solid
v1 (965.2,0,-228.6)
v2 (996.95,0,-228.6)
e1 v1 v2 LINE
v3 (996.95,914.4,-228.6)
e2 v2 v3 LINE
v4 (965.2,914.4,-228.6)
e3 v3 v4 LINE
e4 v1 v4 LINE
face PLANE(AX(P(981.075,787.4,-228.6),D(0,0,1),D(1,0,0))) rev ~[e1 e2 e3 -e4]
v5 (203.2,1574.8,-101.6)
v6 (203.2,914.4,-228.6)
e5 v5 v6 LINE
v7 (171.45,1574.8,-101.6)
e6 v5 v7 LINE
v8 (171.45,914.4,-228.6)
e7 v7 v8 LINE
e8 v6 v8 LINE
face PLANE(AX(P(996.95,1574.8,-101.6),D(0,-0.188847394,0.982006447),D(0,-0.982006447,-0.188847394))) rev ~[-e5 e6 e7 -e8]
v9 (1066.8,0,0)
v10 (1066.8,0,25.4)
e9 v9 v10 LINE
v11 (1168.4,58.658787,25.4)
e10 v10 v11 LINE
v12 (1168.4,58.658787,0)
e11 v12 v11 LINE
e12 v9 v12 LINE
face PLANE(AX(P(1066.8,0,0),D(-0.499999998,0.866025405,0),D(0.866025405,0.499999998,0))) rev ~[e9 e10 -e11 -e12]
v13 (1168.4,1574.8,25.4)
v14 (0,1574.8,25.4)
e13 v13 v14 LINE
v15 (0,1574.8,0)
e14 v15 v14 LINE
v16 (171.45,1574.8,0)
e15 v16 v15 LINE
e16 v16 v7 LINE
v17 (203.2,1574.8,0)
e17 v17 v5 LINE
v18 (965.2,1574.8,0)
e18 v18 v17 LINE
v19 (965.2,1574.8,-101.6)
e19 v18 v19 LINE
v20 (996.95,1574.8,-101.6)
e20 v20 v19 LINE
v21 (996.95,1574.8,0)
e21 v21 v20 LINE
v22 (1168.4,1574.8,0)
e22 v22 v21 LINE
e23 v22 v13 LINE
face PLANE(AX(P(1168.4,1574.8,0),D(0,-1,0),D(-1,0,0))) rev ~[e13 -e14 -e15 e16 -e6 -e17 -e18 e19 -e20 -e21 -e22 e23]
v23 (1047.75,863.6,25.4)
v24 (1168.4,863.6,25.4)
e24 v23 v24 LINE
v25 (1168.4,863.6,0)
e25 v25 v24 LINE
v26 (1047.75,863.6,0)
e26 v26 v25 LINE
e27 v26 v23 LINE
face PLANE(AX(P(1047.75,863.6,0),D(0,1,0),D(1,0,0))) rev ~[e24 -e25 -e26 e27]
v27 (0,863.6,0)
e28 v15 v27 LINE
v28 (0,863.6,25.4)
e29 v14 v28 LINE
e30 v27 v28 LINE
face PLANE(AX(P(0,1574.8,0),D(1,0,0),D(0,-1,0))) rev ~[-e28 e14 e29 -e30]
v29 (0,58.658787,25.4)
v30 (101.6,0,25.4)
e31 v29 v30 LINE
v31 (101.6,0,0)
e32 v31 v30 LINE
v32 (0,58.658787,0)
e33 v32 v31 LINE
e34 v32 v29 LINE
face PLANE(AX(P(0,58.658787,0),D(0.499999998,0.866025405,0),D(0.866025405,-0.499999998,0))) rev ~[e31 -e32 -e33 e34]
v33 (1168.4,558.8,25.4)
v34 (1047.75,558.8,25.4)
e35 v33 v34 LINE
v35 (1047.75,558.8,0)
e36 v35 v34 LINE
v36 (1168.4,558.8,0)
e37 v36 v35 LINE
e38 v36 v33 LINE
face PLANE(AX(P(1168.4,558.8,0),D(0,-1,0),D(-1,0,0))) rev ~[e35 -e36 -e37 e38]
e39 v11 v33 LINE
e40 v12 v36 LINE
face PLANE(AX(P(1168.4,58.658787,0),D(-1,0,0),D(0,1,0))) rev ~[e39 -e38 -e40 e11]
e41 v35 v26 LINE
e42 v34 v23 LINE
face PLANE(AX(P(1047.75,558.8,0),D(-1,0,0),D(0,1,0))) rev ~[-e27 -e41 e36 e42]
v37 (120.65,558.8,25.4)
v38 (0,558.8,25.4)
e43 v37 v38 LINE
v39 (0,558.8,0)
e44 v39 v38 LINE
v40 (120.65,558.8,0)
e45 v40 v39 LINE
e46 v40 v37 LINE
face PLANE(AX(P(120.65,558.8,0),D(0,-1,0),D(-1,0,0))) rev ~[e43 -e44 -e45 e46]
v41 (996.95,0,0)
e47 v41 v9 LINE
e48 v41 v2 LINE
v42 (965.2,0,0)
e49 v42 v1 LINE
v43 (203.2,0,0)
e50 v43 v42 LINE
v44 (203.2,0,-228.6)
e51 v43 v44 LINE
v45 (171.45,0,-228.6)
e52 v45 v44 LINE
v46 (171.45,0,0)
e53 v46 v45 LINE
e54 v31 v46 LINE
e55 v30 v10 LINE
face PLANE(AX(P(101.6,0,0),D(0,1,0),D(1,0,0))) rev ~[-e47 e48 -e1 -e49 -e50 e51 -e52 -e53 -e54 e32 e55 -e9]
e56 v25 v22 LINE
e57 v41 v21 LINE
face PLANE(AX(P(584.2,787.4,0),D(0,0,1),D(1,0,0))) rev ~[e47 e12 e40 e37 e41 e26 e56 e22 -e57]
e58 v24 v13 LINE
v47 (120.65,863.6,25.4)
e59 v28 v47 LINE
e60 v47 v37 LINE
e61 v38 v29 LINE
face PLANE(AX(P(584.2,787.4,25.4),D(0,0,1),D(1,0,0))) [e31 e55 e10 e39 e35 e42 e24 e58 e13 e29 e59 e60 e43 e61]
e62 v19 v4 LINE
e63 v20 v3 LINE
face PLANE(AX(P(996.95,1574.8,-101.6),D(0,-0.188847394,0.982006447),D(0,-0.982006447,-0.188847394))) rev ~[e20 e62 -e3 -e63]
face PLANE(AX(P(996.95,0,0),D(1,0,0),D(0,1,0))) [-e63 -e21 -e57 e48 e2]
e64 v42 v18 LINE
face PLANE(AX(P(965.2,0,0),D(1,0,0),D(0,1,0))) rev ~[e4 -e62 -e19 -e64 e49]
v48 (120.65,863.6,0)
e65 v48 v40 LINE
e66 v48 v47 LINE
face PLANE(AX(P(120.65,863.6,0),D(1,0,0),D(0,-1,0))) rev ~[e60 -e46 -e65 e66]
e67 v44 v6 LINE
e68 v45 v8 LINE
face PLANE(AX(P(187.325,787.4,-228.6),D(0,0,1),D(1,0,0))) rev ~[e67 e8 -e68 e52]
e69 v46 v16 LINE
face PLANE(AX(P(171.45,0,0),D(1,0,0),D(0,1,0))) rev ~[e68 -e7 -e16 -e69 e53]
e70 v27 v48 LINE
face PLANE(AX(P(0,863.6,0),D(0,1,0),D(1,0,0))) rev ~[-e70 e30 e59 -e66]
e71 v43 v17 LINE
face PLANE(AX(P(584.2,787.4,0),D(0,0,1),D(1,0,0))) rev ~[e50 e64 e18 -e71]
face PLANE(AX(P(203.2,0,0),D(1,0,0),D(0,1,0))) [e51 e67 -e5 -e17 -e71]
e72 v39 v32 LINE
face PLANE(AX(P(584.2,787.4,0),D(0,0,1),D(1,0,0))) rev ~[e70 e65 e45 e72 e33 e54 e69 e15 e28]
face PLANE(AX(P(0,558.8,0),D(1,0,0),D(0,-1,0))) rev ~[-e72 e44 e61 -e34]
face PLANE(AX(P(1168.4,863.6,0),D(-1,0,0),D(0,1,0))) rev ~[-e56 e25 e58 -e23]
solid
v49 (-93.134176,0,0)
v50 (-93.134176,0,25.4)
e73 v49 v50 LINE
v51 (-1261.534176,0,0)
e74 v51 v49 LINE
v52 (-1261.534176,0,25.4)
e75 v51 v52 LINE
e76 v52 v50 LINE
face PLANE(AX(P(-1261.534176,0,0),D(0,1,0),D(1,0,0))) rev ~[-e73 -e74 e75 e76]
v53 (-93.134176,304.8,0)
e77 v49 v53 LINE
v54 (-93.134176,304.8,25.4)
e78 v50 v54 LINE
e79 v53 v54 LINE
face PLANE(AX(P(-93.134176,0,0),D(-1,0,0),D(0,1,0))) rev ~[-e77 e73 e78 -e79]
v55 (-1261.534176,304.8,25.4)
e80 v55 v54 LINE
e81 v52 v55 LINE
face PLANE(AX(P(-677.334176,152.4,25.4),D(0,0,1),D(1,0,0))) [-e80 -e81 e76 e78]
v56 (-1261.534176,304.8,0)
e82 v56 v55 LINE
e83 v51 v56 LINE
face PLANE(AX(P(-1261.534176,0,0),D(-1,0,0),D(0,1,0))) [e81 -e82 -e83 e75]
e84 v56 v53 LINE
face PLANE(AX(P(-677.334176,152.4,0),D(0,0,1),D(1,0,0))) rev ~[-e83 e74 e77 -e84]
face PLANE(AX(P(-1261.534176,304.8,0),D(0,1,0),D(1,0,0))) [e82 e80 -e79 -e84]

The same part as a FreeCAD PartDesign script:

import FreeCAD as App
import Part
import Sketcher
Q = App.Units.Quantity

doc = App.newDocument("Part")
body = doc.addObject("PartDesign::Body", "Body")

# Sketch on XY plane
sketch1 = body.newObject("Sketcher::SketchObject", "Sketch")
sketch1.AttachmentSupport = (doc.getObject("XY_Plane"), [""])
sketch1.MapMode = "FlatFace"
sketch1.addGeometry([
    Part.LineSegment(App.Vector(0, 1575, 0), App.Vector(0, 864, 0)),  # 0
    Part.LineSegment(App.Vector(0, 864, 0), App.Vector(121, 864, 0)),  # 1
    Part.LineSegment(App.Vector(121, 864, 0), App.Vector(121, 559, 0)),  # 2
    Part.LineSegment(App.Vector(121, 559, 0), App.Vector(0, 559, 0)),  # 3
    Part.LineSegment(App.Vector(0, 559, 0), App.Vector(0, 59, 0)),  # 4
    Part.LineSegment(App.Vector(0, 59, 0), App.Vector(102, 0, 0)),  # 5
    Part.LineSegment(App.Vector(102, 0, 0), App.Vector(1067, 0, 0)),  # 6
    Part.LineSegment(App.Vector(1067, 0, 0), App.Vector(1168, 59, 0)),  # 7
    Part.LineSegment(App.Vector(1168, 59, 0), App.Vector(1168, 559, 0)),  # 8
    Part.LineSegment(App.Vector(1168, 559, 0), App.Vector(1048, 559, 0)),  # 9
    Part.LineSegment(App.Vector(1048, 559, 0), App.Vector(1048, 864, 0)),  # 10
    Part.LineSegment(App.Vector(1048, 864, 0), App.Vector(1168, 864, 0)),  # 11
    Part.LineSegment(App.Vector(1168, 864, 0), App.Vector(1168, 1575, 0)),  # 12
    Part.LineSegment(App.Vector(1168, 1575, 0), App.Vector(0, 1575, 0)),  # 13
], False)
sketch1.addConstraint([
    Sketcher.Constraint("Coincident", 0, 2, 1, 1),
    Sketcher.Constraint("Coincident", 1, 2, 2, 1),
    Sketcher.Constraint("Coincident", 2, 2, 3, 1),
    Sketcher.Constraint("Coincident", 3, 2, 4, 1),
    Sketcher.Constraint("Coincident", 4, 2, 5, 1),
    Sketcher.Constraint("Coincident", 5, 2, 6, 1),
    Sketcher.Constraint("Coincident", 6, 2, 7, 1),
    Sketcher.Constraint("Coincident", 7, 2, 8, 1),
    Sketcher.Constraint("Coincident", 8, 2, 9, 1),
    Sketcher.Constraint("Coincident", 9, 2, 10, 1),
    Sketcher.Constraint("Coincident", 10, 2, 11, 1),
    Sketcher.Constraint("Coincident", 11, 2, 12, 1),
    Sketcher.Constraint("Coincident", 12, 2, 13, 1),
    Sketcher.Constraint("Coincident", 13, 2, 0, 1),
    Sketcher.Constraint("Vertical", 0),
    Sketcher.Constraint("Horizontal", 1),
    Sketcher.Constraint("Vertical", 2),
    Sketcher.Constraint("Horizontal", 3),
    Sketcher.Constraint("Vertical", 4),
    Sketcher.Constraint("Horizontal", 6),
    Sketcher.Constraint("Vertical", 8),
    Sketcher.Constraint("Horizontal", 9),
    Sketcher.Constraint("Vertical", 10),
    Sketcher.Constraint("Horizontal", 11),
    Sketcher.Constraint("Vertical", 12),
    Sketcher.Constraint("Horizontal", 13),
    Sketcher.Constraint("PointOnObject", 0, 2, -2),
    Sketcher.Constraint("PointOnObject", 3, 2, -2),
    Sketcher.Constraint("PointOnObject", 5, 2, -1),
    Sketcher.Constraint("Horizontal", 4, 2, 7, 2),
    Sketcher.Constraint("Horizontal", 3, 2, 8, 2),
    Sketcher.Constraint("Horizontal", 1, 2, 10, 2),
    Sketcher.Constraint("Vertical", 8, 2, 11, 2),
    Sketcher.Constraint("Equal", 3, 9),
    Sketcher.Constraint("Equal", 5, 7),
    Sketcher.Constraint("DistanceX", 6, 1, 6, 2, Q("38 in")),
    Sketcher.Constraint("DistanceX", 13, 2, 13, 1, Q("46 in")),
    Sketcher.Constraint("DistanceY", 0, 2, 0, 1, Q("28 in")),
    Sketcher.Constraint("DistanceY", 2, 2, 2, 1, Q("12 in")),
    Sketcher.Constraint("DistanceY", -1, 1, 0, 2, Q("34 in")),
    Sketcher.Constraint("Angle", 5, Q("-30 deg")),
    Sketcher.Constraint("DistanceX", 1, 1, 1, 2, Q("4.75 in")),
])
pad1 = body.newObject("PartDesign::Pad", "Pad")
pad1.Profile = sketch1
pad1.Length = Q("1 in")

# Sketch on XY plane
sketch2 = body.newObject("Sketcher::SketchObject", "Sketch001")
sketch2.AttachmentSupport = (doc.getObject("XY_Plane"), [""])
sketch2.MapMode = "FlatFace"
sketch2.addGeometry([
    Part.LineSegment(App.Vector(171, 1575, 0), App.Vector(171, 0, 0)),  # 0
    Part.LineSegment(App.Vector(171, 0, 0), App.Vector(203, 0, 0)),  # 1
    Part.LineSegment(App.Vector(203, 0, 0), App.Vector(203, 1575, 0)),  # 2
    Part.LineSegment(App.Vector(203, 1575, 0), App.Vector(171, 1575, 0)),  # 3
    Part.LineSegment(App.Vector(965, 1575, 0), App.Vector(965, 0, 0)),  # 4
    Part.LineSegment(App.Vector(965, 0, 0), App.Vector(997, 0, 0)),  # 5
    Part.LineSegment(App.Vector(997, 0, 0), App.Vector(997, 1575, 0)),  # 6
    Part.LineSegment(App.Vector(997, 1575, 0), App.Vector(965, 1575, 0)),  # 7
], False)
sketch2.addConstraint([
    Sketcher.Constraint("Coincident", 0, 2, 1, 1),
    Sketcher.Constraint("Coincident", 1, 2, 2, 1),
    Sketcher.Constraint("Coincident", 2, 2, 3, 1),
    Sketcher.Constraint("Coincident", 3, 2, 0, 1),
    Sketcher.Constraint("Coincident", 4, 2, 5, 1),
    Sketcher.Constraint("Coincident", 5, 2, 6, 1),
    Sketcher.Constraint("Coincident", 6, 2, 7, 1),
    Sketcher.Constraint("Coincident", 7, 2, 4, 1),
    Sketcher.Constraint("Vertical", 0),
    Sketcher.Constraint("Horizontal", 1),
    Sketcher.Constraint("Vertical", 2),
    Sketcher.Constraint("Horizontal", 3),
    Sketcher.Constraint("Vertical", 4),
    Sketcher.Constraint("Horizontal", 5),
    Sketcher.Constraint("Vertical", 6),
    Sketcher.Constraint("Horizontal", 7),
    Sketcher.Constraint("PointOnObject", 0, 2, -1),
    Sketcher.Constraint("PointOnObject", 4, 2, -1),
    Sketcher.Constraint("Horizontal", 3, 2, 6, 2),
    Sketcher.Constraint("Equal", 3, 5),
    Sketcher.Constraint("DistanceY", 0, 2, 0, 1, Q("62 in")),
    Sketcher.Constraint("DistanceX", -1, 1, 1, 2, Q("8 in")),
    Sketcher.Constraint("DistanceX", -1, 1, 4, 2, Q("38 in")),
    Sketcher.Constraint("DistanceX", 1, 1, 1, 2, Q("1.25 in")),
])
pad2 = body.newObject("PartDesign::Pad", "Pad001")
pad2.Profile = sketch2
pad2.Length = Q("9 in")
pad2.Reversed = True

# Sketch on YZ plane
sketch3 = body.newObject("Sketcher::SketchObject", "Sketch002")
sketch3.AttachmentSupport = (doc.getObject("YZ_Plane"), [""])
sketch3.MapMode = "FlatFace"
sketch3.AttachmentOffset = App.Placement(App.Vector(0, 0, 39.25 * 25.4), App.Rotation())
sketch3.addGeometry([
    Part.LineSegment(App.Vector(1575, -102, 0), App.Vector(914, -229, 0)),
    Part.LineSegment(App.Vector(914, -229, 0), App.Vector(1575, -229, 0)),
    Part.LineSegment(App.Vector(1575, -229, 0), App.Vector(1575, -102, 0)),
], False)
sketch3.addConstraint([
    Sketcher.Constraint("Coincident", 0, 2, 1, 1),
    Sketcher.Constraint("Coincident", 1, 2, 2, 1),
    Sketcher.Constraint("Coincident", 2, 2, 0, 1),
    Sketcher.Constraint("Horizontal", 1),
    Sketcher.Constraint("Vertical", 2),
    Sketcher.Constraint("DistanceX", 1, 1, 1, 2, Q("26 in")),
    Sketcher.Constraint("DistanceY", 2, 1, 2, 2, Q("5 in")),
    Sketcher.Constraint("DistanceX", -1, 1, 0, 2, Q("36 in")),
    Sketcher.Constraint("DistanceY", 0, 2, -1, 1, Q("9 in")),
])
pocket1 = body.newObject("PartDesign::Pocket", "Pocket")
pocket1.Profile = sketch3
pocket1.Length = Q("100 in")
body2 = doc.addObject("PartDesign::Body", "Body001")

# Sketch on XY plane
sketch4 = body2.newObject("Sketcher::SketchObject", "Sketch003")
sketch4.AttachmentSupport = (doc.getObject("XY_Plane001"), [""])
sketch4.MapMode = "FlatFace"
sketch4.addGeometry([
    Part.LineSegment(App.Vector(-1262, 305, 0), App.Vector(-1262, 0, 0)),
    Part.LineSegment(App.Vector(-1262, 0, 0), App.Vector(-93, 0, 0)),
    Part.LineSegment(App.Vector(-93, 0, 0), App.Vector(-93, 305, 0)),
    Part.LineSegment(App.Vector(-93, 305, 0), App.Vector(-1262, 305, 0)),
], False)
sketch4.addConstraint([
    Sketcher.Constraint("Coincident", 0, 2, 1, 1),
    Sketcher.Constraint("Coincident", 1, 2, 2, 1),
    Sketcher.Constraint("Coincident", 2, 2, 3, 1),
    Sketcher.Constraint("Coincident", 3, 2, 0, 1),
    Sketcher.Constraint("Vertical", 0),
    Sketcher.Constraint("Horizontal", 1),
    Sketcher.Constraint("Vertical", 2),
    Sketcher.Constraint("Horizontal", 3),
    Sketcher.Constraint("PointOnObject", 0, 2, -1),
    Sketcher.Constraint("DistanceX", 1, 1, 1, 2, Q("46 in")),
    Sketcher.Constraint("DistanceY", 0, 2, 0, 1, Q("12 in")),
    Sketcher.Constraint("DistanceX", 0, 2, -1, 1, Q("49.6666998 in")),
])
pad3 = body2.newObject("PartDesign::Pad", "Pad002")
pad3.Profile = sketch4
pad3.Length = Q("1 in")

doc.recompute()
